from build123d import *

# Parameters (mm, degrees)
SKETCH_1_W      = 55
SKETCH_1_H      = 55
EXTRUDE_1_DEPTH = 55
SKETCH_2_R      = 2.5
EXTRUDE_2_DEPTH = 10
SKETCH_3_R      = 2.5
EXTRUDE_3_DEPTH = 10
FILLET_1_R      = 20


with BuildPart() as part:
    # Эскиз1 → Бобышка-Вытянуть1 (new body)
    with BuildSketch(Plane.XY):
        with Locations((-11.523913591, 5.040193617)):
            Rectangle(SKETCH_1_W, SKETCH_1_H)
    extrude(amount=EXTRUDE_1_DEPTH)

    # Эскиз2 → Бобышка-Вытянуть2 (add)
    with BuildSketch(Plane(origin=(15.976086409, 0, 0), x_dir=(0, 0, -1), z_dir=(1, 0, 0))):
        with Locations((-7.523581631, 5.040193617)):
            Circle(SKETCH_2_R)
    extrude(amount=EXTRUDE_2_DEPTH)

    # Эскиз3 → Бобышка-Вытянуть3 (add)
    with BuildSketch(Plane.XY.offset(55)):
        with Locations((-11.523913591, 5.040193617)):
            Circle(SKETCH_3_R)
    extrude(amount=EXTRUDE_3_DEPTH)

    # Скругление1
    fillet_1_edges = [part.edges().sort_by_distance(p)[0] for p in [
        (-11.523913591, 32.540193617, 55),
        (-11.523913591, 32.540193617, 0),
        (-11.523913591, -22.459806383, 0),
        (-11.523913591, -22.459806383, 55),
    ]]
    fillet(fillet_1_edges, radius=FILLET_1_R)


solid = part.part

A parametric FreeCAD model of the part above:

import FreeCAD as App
import Part
import Sketcher
from FreeCAD import Vector


def edges_at(feature, points):
    """Names of the edges that pass closest to the given points."""
    edges = feature.Shape.Edges
    near = lambda p: min(range(len(edges)), key=lambda i: edges[i].distToShape(Part.Vertex(*p))[0])
    return sorted({f"Edge{near(p) + 1}" for p in points})

doc = App.newDocument("Part")
body = doc.addObject("PartDesign::Body", "Body")

sketch1 = body.newObject("Sketcher::SketchObject", "Sketch")
sketch1.AttachmentSupport = (doc.getObject("XY_Plane"), [""])
sketch1.MapMode = "FlatFace"
sketch1.addGeometry(Part.LineSegment(Vector(-39.023914, 32.540194, 0), Vector(-39.023914, -22.459806, 0)), False)
sketch1.addGeometry(Part.LineSegment(Vector(-39.023914, -22.459806, 0), Vector(15.976086, -22.459806, 0)), False)
sketch1.addGeometry(Part.LineSegment(Vector(15.976086, -22.459806, 0), Vector(15.976086, 32.540194, 0)), False)
sketch1.addGeometry(Part.LineSegment(Vector(15.976086, 32.540194, 0), Vector(-39.023914, 32.540194, 0)), False)
sketch1.addConstraint(Sketcher.Constraint("Coincident", 0, 2, 1, 1))
sketch1.addConstraint(Sketcher.Constraint("Coincident", 1, 2, 2, 1))
sketch1.addConstraint(Sketcher.Constraint("Coincident", 2, 2, 3, 1))
sketch1.addConstraint(Sketcher.Constraint("Coincident", 3, 2, 0, 1))
sketch1.addConstraint(Sketcher.Constraint("Vertical", 0))
sketch1.addConstraint(Sketcher.Constraint("Horizontal", 1))
sketch1.addConstraint(Sketcher.Constraint("Vertical", 2))
sketch1.addConstraint(Sketcher.Constraint("Horizontal", 3))
sketch1.addConstraint(Sketcher.Constraint("Equal", 3, 0))
sketch1.addConstraint(Sketcher.Constraint("DistanceX", 1, 1, 1, 2, 55.0))
sketch1.addConstraint(Sketcher.Constraint("DistanceX", 0, 2, -1, 1, 39.023914))
sketch1.addConstraint(Sketcher.Constraint("DistanceY", 0, 2, -1, 1, 22.459806))
pad1 = body.newObject("PartDesign::Pad", "Pad")
pad1.Profile = sketch1
pad1.Length = 55

sketch2 = body.newObject("Sketcher::SketchObject", "Sketch001")
sketch2.AttachmentSupport = (doc.getObject("YZ_Plane"), [""])
sketch2.MapMode = "FlatFace"
sketch2.AttachmentOffset = App.Placement(Vector(0, 0, 15.976086), App.Rotation())
sketch2.addGeometry(Part.Circle(Vector(5.040194, 7.523582, 0), Vector(0, 0, 1), 2.5), False)
sketch2.addConstraint(Sketcher.Constraint("Diameter", 0, 5.0))
sketch2.addConstraint(Sketcher.Constraint("DistanceY", -1, 1, 0, 3, 7.523582))
sketch2.addConstraint(Sketcher.Constraint("DistanceX", -1, 1, 0, 3, 5.040194))
pad2 = body.newObject("PartDesign::Pad", "Pad001")
pad2.Profile = sketch2
pad2.Length = 10

sketch3 = body.newObject("Sketcher::SketchObject", "Sketch002")
sketch3.AttachmentSupport = (doc.getObject("XY_Plane"), [""])
sketch3.MapMode = "FlatFace"
sketch3.AttachmentOffset = App.Placement(Vector(0, 0, 55), App.Rotation())
sketch3.addGeometry(Part.Circle(Vector(-11.523914, 5.040194, 0), Vector(0, 0, 1), 2.5), False)
sketch3.addConstraint(Sketcher.Constraint("Diameter", 0, 5.0))
sketch3.addConstraint(Sketcher.Constraint("DistanceX", 0, 3, -1, 1, 11.523914))
sketch3.addConstraint(Sketcher.Constraint("DistanceY", -1, 1, 0, 3, 5.040194))
pad3 = body.newObject("PartDesign::Pad", "Pad002")
pad3.Profile = sketch3
pad3.Length = 10
doc.recompute()

fillet = body.newObject("PartDesign::Fillet", "Fillet")
fillet.Base = (pad3, edges_at(pad3, [
    (-11.524, 32.54, 55),
    (-11.524, 32.54, 0),
    (-11.524, -22.46, 0),
    (-11.524, -22.46, 55),
]))
fillet.Radius = 20

doc.recompute()
